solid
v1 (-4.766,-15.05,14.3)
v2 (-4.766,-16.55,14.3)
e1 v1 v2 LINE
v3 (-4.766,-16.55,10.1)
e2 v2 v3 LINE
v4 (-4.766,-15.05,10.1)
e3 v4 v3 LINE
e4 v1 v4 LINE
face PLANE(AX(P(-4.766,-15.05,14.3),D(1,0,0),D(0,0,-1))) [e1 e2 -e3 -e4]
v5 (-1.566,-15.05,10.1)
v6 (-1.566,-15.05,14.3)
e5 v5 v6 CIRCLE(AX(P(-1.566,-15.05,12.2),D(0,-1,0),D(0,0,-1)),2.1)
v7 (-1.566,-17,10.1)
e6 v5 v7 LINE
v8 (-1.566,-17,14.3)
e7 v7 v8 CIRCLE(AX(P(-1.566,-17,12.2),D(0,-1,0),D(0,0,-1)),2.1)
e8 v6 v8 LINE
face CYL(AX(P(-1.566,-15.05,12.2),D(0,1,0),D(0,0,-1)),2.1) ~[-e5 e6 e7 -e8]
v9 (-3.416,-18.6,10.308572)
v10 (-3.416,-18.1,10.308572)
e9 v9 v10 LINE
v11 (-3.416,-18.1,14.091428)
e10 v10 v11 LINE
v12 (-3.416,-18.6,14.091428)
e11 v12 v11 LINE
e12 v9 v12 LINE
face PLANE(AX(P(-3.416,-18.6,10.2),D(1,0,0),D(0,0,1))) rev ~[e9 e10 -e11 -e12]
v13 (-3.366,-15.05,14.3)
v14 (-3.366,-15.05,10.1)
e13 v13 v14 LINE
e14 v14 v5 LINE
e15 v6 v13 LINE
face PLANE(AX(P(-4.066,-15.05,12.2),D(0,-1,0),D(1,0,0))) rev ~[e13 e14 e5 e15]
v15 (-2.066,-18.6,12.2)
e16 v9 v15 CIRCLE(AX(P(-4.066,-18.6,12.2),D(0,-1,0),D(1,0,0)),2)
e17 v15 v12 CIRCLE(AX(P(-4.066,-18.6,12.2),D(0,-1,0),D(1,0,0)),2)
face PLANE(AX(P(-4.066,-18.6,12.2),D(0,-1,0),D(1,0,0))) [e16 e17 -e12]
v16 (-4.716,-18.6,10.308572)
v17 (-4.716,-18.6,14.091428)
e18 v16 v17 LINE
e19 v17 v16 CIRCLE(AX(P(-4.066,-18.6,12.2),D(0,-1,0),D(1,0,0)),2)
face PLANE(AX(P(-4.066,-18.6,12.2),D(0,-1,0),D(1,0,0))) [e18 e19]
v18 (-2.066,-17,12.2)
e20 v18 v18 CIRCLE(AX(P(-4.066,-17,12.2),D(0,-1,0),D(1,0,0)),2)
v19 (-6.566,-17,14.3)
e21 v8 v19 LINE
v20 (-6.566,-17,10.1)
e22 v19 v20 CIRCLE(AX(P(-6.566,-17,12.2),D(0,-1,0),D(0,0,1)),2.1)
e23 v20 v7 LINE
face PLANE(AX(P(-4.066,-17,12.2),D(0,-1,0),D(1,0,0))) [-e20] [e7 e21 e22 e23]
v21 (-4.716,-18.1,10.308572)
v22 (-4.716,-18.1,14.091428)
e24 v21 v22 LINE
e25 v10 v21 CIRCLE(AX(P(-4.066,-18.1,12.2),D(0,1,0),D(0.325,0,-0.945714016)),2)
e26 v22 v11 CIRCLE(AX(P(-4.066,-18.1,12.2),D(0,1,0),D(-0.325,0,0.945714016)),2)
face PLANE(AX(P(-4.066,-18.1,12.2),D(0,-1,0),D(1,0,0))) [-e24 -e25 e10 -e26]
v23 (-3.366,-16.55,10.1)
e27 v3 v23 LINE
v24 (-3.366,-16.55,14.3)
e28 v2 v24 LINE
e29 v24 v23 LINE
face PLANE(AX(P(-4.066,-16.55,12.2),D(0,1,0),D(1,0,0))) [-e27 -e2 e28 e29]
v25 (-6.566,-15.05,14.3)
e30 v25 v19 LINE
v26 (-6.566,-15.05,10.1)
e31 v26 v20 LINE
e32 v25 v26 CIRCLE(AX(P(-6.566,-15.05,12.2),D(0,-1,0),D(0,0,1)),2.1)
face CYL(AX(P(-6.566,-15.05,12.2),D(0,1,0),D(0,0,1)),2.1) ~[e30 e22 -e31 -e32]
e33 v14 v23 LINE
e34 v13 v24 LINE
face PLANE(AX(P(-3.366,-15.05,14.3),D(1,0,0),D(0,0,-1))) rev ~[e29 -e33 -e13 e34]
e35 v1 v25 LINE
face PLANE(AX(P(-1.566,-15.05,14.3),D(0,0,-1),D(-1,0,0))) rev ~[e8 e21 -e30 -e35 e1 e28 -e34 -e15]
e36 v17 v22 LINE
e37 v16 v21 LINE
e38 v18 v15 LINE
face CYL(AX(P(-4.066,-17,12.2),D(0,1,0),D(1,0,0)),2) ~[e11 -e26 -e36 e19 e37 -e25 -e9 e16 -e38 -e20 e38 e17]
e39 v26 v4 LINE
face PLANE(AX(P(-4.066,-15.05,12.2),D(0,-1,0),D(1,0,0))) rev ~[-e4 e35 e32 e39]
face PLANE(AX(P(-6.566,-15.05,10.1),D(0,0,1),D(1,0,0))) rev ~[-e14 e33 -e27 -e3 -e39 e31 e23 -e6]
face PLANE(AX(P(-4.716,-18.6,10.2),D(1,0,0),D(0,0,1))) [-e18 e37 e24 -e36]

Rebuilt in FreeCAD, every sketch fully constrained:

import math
import FreeCAD as App
import Part
import Sketcher

V = App.Vector

doc = App.newDocument("Part")
body = doc.addObject("PartDesign::Body", "Body")

# Sketch on XZ plane
sketch1 = body.newObject("Sketcher::SketchObject", "Sketch")
sketch1.AttachmentSupport = (doc.getObject("XZ_Plane"), [""])
sketch1.MapMode = "FlatFace"
sketch1.addGeometry([
    Part.ArcOfCircle(Part.Circle(V(-2.5, 0, 0), V(0, 0, 1), 2.1), math.radians(90), math.radians(270)),
    Part.LineSegment(V(-2.5, -2.1, 0), V(2.5, -2.1, 0)),
    Part.ArcOfCircle(Part.Circle(V(2.5, 0, 0), V(0, 0, 1), 2.1), math.radians(-90), math.radians(90)),
    Part.LineSegment(V(2.5, 2.1, 0), V(-2.5, 2.1, 0)),
], False)
sketch1.addConstraint([
    Sketcher.Constraint("Tangent", 0, 2, 1, 1),
    Sketcher.Constraint("Tangent", 1, 2, 2, 1),
    Sketcher.Constraint("Tangent", 2, 2, 3, 1),
    Sketcher.Constraint("Tangent", 3, 2, 0, 1),
    Sketcher.Constraint("Horizontal", 1),
    Sketcher.Constraint("Horizontal", 3),
    Sketcher.Constraint("Symmetric", 0, 3, 2, 3, -1, 1),
    Sketcher.Constraint("Radius", 0, 2.1),
    Sketcher.Constraint("DistanceX", 1, 1, 1, 2, 5.0),
])
pad1 = body.newObject("PartDesign::Pad", "Pad")
pad1.Profile = sketch1
pad1.Length = 1.95

# Sketch on XZ plane
sketch2 = body.newObject("Sketcher::SketchObject", "Sketch001")
sketch2.AttachmentSupport = (doc.getObject("XZ_Plane"), [""])
sketch2.MapMode = "FlatFace"
sketch2.AttachmentOffset = App.Placement(V(0, 0, 1.95), App.Rotation())
sketch2.addGeometry(Part.Circle(V(0, 0, 0), V(0, 0, 1), 2), False)
sketch2.addConstraint([
    Sketcher.Constraint("Coincident", 0, 3, -1, 1),
    Sketcher.Constraint("Diameter", 0, 4.0),
])
pad2 = body.newObject("PartDesign::Pad", "Pad001")
pad2.Profile = sketch2
pad2.Length = 1.6

# Sketch on XZ plane
sketch3 = body.newObject("Sketcher::SketchObject", "Sketch002")
sketch3.AttachmentSupport = (doc.getObject("XZ_Plane"), [""])
sketch3.MapMode = "FlatFace"
sketch3.addGeometry([
    Part.LineSegment(V(-0.7, -2.1, 0), V(-0.7, 2.1, 0)),
    Part.LineSegment(V(-0.7, 2.1, 0), V(0.7, 2.1, 0)),
    Part.LineSegment(V(0.7, 2.1, 0), V(0.7, -2.1, 0)),
    Part.LineSegment(V(0.7, -2.1, 0), V(-0.7, -2.1, 0)),
], False)
sketch3.addConstraint([
    Sketcher.Constraint("Coincident", 0, 2, 1, 1),
    Sketcher.Constraint("Coincident", 1, 2, 2, 1),
    Sketcher.Constraint("Coincident", 2, 2, 3, 1),
    Sketcher.Constraint("Coincident", 3, 2, 0, 1),
    Sketcher.Constraint("Vertical", 0),
    Sketcher.Constraint("Horizontal", 1),
    Sketcher.Constraint("Vertical", 2),
    Sketcher.Constraint("Horizontal", 3),
    Sketcher.Constraint("Symmetric", 0, 2, 2, 2, -1, 1),
    Sketcher.Constraint("DistanceX", 1, 1, 1, 2, 1.4),
    Sketcher.Constraint("DistanceY", 0, 1, 0, 2, 4.2),
])
pocket1 = body.newObject("PartDesign::Pocket", "Pocket")
pocket1.Profile = sketch3
pocket1.Length = 1.5
pocket1.Reversed = True

# Sketch on XZ plane
sketch4 = body.newObject("Sketcher::SketchObject", "Sketch003")
sketch4.AttachmentSupport = (doc.getObject("XZ_Plane"), [""])
sketch4.MapMode = "FlatFace"
sketch4.AttachmentOffset = App.Placement(V(0, 0, 3.55), App.Rotation())
sketch4.addGeometry([
    Part.LineSegment(V(-0.65, 2, 0), V(-0.65, -2, 0)),
    Part.LineSegment(V(-0.65, -2, 0), V(0.65, -2, 0)),
    Part.LineSegment(V(0.65, -2, 0), V(0.65, 2, 0)),
    Part.LineSegment(V(0.65, 2, 0), V(-0.65, 2, 0)),
], False)
sketch4.addConstraint([
    Sketcher.Constraint("Coincident", 0, 2, 1, 1),
    Sketcher.Constraint("Coincident", 1, 2, 2, 1),
    Sketcher.Constraint("Coincident", 2, 2, 3, 1),
    Sketcher.Constraint("Coincident", 3, 2, 0, 1),
    Sketcher.Constraint("Vertical", 0),
    Sketcher.Constraint("Horizontal", 1),
    Sketcher.Constraint("Vertical", 2),
    Sketcher.Constraint("Horizontal", 3),
    Sketcher.Constraint("Symmetric", 0, 2, 2, 2, -1, 1),
    Sketcher.Constraint("DistanceY", 0, 2, 0, 1, 4.0),
    Sketcher.Constraint("DistanceX", 1, 1, 1, 2, 1.3),
])
pocket2 = body.newObject("PartDesign::Pocket", "Pocket001")
pocket2.Profile = sketch4
pocket2.Length = 0.5
body2 = doc.addObject("PartDesign::Body", "Body001")
doc.recompute()

body.Placement = App.Placement(V(-4.066, -15.05, 12.2), App.Rotation(V(0, 0, 1), 0))
boolean = body2.newObject("PartDesign::Boolean", "Boolean")
boolean.Type = "Fuse"
boolean.addObjects([body])

doc.recompute()
